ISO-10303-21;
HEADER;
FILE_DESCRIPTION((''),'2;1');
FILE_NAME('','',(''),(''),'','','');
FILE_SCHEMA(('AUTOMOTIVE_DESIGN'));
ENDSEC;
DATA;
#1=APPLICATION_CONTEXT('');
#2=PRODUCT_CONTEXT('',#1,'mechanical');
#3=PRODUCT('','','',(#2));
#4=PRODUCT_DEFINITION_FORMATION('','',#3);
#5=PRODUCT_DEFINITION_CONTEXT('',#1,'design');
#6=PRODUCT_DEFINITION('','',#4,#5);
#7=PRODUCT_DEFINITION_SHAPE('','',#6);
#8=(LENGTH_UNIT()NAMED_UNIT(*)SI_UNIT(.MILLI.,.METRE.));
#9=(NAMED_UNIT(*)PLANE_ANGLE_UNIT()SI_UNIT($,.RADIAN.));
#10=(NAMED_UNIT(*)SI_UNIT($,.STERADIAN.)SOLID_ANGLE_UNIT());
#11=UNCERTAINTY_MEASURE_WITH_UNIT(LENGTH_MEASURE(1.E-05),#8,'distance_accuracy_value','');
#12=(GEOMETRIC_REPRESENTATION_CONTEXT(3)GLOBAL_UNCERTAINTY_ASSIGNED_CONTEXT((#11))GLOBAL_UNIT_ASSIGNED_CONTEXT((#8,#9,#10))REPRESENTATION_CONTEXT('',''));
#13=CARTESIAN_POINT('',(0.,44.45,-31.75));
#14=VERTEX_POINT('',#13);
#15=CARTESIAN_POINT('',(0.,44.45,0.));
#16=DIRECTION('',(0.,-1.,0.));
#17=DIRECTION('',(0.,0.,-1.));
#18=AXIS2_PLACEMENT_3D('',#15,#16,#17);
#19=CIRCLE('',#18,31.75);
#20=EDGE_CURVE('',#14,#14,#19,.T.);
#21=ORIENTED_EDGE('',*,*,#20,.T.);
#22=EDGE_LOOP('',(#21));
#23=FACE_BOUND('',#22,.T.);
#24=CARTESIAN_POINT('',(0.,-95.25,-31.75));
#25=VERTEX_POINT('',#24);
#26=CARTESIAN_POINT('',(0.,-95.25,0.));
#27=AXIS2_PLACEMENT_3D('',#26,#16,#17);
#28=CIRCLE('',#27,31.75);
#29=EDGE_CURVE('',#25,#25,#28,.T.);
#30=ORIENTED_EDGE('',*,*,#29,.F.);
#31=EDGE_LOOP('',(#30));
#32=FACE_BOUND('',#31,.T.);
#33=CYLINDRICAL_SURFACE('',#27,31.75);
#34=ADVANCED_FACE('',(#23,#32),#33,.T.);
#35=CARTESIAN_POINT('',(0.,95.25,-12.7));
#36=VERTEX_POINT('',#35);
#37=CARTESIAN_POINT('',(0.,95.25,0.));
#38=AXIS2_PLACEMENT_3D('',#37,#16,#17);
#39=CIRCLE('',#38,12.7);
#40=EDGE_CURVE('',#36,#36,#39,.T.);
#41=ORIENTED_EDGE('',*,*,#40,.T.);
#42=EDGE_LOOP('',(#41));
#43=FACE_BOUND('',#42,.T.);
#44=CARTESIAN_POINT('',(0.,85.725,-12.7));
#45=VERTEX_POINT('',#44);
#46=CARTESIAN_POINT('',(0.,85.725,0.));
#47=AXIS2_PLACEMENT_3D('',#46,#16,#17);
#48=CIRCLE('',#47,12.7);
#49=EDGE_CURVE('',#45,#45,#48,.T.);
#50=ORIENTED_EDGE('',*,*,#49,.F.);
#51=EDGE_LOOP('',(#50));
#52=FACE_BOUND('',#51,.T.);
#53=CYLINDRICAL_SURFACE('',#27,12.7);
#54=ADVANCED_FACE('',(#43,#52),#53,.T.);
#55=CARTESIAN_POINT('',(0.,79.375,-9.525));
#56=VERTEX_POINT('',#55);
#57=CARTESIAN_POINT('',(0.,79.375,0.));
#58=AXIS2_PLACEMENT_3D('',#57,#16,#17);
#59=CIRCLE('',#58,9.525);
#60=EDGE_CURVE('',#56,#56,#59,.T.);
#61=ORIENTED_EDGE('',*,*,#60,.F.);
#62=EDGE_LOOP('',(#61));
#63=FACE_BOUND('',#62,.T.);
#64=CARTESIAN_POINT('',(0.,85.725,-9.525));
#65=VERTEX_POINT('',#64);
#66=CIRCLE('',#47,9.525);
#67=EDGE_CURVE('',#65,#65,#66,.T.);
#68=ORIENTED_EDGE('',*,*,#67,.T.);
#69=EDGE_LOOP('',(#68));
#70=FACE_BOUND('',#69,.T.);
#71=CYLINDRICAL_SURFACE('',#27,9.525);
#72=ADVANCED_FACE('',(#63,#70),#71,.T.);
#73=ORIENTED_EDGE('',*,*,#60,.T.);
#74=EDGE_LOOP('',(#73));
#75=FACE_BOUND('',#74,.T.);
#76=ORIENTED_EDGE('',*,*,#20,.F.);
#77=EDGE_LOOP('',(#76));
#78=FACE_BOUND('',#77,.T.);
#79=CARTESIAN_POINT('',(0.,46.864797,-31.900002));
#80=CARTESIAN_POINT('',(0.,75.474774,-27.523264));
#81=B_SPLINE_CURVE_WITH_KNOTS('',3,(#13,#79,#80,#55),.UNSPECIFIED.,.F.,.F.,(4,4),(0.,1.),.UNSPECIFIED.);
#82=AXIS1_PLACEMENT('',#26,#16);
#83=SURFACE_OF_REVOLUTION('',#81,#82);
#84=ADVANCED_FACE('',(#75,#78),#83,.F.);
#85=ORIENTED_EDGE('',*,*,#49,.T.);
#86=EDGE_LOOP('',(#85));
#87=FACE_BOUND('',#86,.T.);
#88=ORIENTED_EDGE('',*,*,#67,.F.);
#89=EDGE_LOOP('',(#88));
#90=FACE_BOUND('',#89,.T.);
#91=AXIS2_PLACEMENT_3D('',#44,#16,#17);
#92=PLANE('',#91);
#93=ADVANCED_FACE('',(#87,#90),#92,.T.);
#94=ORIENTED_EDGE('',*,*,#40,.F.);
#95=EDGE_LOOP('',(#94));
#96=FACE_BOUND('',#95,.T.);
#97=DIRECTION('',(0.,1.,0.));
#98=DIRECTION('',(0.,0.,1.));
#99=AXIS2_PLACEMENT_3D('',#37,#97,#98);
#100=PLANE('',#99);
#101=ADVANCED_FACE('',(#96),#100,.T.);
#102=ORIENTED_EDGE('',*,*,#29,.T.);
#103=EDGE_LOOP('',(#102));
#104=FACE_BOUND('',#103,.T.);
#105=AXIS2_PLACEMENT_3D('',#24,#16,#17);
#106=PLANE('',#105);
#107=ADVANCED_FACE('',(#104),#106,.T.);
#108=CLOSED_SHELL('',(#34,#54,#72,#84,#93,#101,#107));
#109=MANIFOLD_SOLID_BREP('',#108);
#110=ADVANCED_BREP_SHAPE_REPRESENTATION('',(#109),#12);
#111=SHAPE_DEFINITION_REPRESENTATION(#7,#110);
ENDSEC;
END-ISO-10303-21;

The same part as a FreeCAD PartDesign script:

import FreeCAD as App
import Part
import Sketcher

V = App.Vector
Q = App.Units.Quantity

doc = App.newDocument("Part")
params = doc.addObject("Spreadsheet::Sheet", "Params")
for row, (alias, value) in enumerate([
    ("sketch1_width", "7.5 in"),
    ("sketch1_height", "0.5 in"),
    ("sketch1_width2", "0.25 in"),
    ("revolution_angle", "360 deg"),
], start=1):
    params.set(f"A{row}", alias)
    params.set(f"B{row}", "=" + value)
    params.setAlias(f"B{row}", alias)

body = doc.addObject("PartDesign::Body", "Body")

sketch1 = body.newObject("Sketcher::SketchObject", "Sketch")
sketch1.AttachmentSupport = (doc.getObject("YZ_Plane"), [""])
sketch1.MapMode = "FlatFace"
sketch1.addGeometry([
    Part.LineSegment(V(95.25, -12.7, 0), V(95.25, 0, 0)),
    Part.LineSegment(V(95.25, 0, 0), V(-95.25, 0, 0)),
    Part.LineSegment(V(-95.25, 0, 0), V(-95.25, -31.75, 0)),
    Part.LineSegment(V(-95.25, -31.75, 0), V(44.45, -31.75, 0)),
    Part.BSplineCurve([V(79.375, -9.525, 0), V(75.474774, -27.523264, 0), V(46.864797, -31.900002, 0), V(44.45, -31.75, 0)], [4, 4], [0, 1], False, 3, [1, 1, 1, 1], False),
    Part.LineSegment(V(79.375, -9.525, 0), V(85.725, -9.525, 0)),
    Part.LineSegment(V(85.725, -9.525, 0), V(85.725, -12.7, 0)),
    Part.LineSegment(V(85.725, -12.7, 0), V(95.25, -12.7, 0)),
], False)
sketch1.addConstraint([
    Sketcher.Constraint("Block", 4),
    Sketcher.Constraint("Coincident", 0, 2, 1, 1),
    Sketcher.Constraint("Coincident", 1, 2, 2, 1),
    Sketcher.Constraint("Coincident", 2, 2, 3, 1),
    Sketcher.Constraint("Coincident", 3, 2, 4, 2),
    Sketcher.Constraint("Coincident", 4, 1, 5, 1),
    Sketcher.Constraint("Coincident", 5, 2, 6, 1),
    Sketcher.Constraint("Coincident", 6, 2, 7, 1),
    Sketcher.Constraint("Coincident", 7, 2, 0, 1),
    Sketcher.Constraint("Vertical", 0),
    Sketcher.Constraint("Horizontal", 1),
    Sketcher.Constraint("Vertical", 2),
    Sketcher.Constraint("Horizontal", 3),
    Sketcher.Constraint("Horizontal", 5),
    Sketcher.Constraint("Vertical", 6),
    Sketcher.Constraint("Horizontal", 7),
    Sketcher.Constraint("Symmetric", 0, 2, 1, 2, -1, 1),
    Sketcher.Constraint("DistanceX", 1, 2, 1, 1, Q("7.5 in")),
    Sketcher.Constraint("DistanceY", 0, 1, 0, 2, Q("0.5 in")),
    Sketcher.Constraint("DistanceX", 5, 1, 5, 2, Q("0.25 in")),
])
sketch1.setExpression("Constraints[17]", "Params.sketch1_width")
sketch1.setExpression("Constraints[18]", "Params.sketch1_height")
sketch1.setExpression("Constraints[19]", "Params.sketch1_width2")
revolution = body.newObject("PartDesign::Revolution", "Revolution")
revolution.Profile = sketch1
revolution.ReferenceAxis = (sketch1, ["H_Axis"])
revolution.setExpression("Angle", "Params.revolution_angle")

doc.recompute()
